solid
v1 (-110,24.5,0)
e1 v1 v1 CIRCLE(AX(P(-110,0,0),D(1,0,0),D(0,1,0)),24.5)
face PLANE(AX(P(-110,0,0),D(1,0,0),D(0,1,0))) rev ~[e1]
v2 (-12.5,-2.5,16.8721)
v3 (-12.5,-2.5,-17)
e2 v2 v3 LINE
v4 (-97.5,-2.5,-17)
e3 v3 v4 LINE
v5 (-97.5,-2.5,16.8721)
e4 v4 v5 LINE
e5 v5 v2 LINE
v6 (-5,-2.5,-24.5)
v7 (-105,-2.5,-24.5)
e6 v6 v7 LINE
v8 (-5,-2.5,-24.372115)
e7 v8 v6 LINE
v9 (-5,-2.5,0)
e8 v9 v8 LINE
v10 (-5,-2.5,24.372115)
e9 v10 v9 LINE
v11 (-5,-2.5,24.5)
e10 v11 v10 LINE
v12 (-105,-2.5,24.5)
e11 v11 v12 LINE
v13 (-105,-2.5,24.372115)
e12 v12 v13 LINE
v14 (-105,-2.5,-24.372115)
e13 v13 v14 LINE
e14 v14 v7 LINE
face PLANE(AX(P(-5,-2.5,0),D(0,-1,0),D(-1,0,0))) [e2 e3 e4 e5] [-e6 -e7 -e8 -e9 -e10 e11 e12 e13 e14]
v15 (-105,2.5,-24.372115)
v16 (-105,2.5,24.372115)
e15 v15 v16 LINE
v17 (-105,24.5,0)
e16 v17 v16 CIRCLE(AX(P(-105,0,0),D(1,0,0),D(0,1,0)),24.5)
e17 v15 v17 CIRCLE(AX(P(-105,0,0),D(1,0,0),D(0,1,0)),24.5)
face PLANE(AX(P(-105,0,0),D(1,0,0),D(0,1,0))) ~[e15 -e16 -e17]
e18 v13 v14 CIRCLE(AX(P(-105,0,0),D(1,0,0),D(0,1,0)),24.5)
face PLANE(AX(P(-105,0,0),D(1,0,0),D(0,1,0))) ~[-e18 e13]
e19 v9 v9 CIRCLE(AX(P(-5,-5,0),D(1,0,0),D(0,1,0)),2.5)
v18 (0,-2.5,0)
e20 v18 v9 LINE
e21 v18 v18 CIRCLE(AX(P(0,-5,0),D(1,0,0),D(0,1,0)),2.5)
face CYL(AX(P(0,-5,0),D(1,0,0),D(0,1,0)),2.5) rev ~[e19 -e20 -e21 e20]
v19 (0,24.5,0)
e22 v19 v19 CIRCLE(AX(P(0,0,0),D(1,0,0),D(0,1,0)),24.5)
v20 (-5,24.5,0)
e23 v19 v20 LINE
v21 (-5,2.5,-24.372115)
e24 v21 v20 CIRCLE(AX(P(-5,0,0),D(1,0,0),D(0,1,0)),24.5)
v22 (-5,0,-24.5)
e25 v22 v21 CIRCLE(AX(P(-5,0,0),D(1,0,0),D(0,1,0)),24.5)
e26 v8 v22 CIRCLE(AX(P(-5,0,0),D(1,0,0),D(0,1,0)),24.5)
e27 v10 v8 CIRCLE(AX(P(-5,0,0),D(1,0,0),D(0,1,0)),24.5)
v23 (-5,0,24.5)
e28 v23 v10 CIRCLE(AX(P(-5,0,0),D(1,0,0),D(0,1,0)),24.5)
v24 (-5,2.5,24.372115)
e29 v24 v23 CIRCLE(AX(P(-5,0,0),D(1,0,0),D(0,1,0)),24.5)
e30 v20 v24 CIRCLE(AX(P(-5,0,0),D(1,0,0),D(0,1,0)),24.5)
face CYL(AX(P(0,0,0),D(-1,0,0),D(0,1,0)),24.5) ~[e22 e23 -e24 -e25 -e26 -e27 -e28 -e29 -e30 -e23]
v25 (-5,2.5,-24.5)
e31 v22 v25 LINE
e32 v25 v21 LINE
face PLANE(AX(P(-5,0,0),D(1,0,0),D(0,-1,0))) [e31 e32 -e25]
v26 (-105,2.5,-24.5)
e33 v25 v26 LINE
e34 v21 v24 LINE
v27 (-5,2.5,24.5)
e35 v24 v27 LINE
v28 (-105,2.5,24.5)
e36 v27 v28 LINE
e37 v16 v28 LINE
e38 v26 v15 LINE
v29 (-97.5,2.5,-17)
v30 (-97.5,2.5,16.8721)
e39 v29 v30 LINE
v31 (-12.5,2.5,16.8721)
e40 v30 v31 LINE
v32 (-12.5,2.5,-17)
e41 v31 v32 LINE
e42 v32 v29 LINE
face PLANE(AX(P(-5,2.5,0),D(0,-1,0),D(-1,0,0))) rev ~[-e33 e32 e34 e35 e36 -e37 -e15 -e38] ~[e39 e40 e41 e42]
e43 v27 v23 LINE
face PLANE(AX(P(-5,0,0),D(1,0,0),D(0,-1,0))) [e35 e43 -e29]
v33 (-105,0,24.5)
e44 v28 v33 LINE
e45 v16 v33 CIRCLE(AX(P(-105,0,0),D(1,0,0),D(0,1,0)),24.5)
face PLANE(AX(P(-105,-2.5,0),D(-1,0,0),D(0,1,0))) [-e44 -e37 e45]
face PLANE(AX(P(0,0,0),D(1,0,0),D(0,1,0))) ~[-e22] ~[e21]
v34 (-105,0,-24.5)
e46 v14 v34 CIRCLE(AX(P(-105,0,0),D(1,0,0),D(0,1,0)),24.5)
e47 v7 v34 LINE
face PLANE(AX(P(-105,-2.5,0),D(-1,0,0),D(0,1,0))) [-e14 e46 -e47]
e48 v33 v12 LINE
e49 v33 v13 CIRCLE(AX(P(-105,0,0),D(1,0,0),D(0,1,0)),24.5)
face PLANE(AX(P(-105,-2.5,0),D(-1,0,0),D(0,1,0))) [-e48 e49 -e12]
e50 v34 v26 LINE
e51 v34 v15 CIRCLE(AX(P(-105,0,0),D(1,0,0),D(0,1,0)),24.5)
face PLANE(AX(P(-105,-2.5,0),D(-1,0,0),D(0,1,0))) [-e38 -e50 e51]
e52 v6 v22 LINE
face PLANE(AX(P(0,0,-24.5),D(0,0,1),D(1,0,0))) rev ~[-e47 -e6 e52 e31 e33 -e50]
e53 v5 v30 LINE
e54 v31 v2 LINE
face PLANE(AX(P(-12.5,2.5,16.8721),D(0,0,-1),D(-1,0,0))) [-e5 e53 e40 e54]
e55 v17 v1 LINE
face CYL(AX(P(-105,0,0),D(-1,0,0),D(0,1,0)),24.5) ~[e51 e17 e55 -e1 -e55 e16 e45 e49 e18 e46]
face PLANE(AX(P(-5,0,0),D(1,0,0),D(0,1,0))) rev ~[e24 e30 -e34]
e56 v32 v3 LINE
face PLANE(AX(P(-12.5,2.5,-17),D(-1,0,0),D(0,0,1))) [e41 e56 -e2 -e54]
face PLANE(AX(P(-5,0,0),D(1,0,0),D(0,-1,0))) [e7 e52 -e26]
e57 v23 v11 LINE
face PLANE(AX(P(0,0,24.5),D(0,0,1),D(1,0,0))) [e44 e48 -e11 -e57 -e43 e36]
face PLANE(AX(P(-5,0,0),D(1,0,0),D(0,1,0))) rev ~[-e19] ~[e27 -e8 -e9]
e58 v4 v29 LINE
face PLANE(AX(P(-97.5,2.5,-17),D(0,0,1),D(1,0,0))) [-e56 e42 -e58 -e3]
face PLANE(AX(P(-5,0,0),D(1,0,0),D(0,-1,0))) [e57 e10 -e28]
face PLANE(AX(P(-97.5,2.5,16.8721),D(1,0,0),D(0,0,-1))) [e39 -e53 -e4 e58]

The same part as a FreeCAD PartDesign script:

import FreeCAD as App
import Part
import Sketcher
Q = App.Units.Quantity


def add_polygon(sketch, points):
    """Adds a closed chain of lines whose ends are joined by coincident constraints."""
    first, n = sketch.GeometryCount, len(points)
    for a, b in zip(points, points[1:] + points[:1]):
        sketch.addGeometry(Part.LineSegment(App.Vector(*a, 0), App.Vector(*b, 0)), False)
    for i in range(n):
        sketch.addConstraint(Sketcher.Constraint("Coincident", first + i, 2, first + (i + 1) % n, 1))

doc = App.newDocument("Part")
body = doc.addObject("PartDesign::Body", "Body")

sketch1 = body.newObject("Sketcher::SketchObject", "Sketch")
sketch1.AttachmentSupport = (doc.getObject("XY_Plane"), [""])
sketch1.MapMode = "FlatFace"
add_polygon(sketch1, [(0, 0), (0, 24), (-5, 24), (-5, 2), (-105, 2), (-105, 24), (-110, 24), (-110, 0)])
sketch1.addConstraint(Sketcher.Constraint("Vertical", 0))
sketch1.addConstraint(Sketcher.Constraint("Horizontal", 1))
sketch1.addConstraint(Sketcher.Constraint("Vertical", 2))
sketch1.addConstraint(Sketcher.Constraint("Horizontal", 3))
sketch1.addConstraint(Sketcher.Constraint("Vertical", 4))
sketch1.addConstraint(Sketcher.Constraint("Horizontal", 5))
sketch1.addConstraint(Sketcher.Constraint("Vertical", 6))
sketch1.addConstraint(Sketcher.Constraint("Horizontal", 7))
sketch1.addConstraint(Sketcher.Constraint("Coincident", 7, 2, -1, 1))
sketch1.addConstraint(Sketcher.Constraint("Horizontal", 1, 2, 4, 2))
sketch1.addConstraint(Sketcher.Constraint("Equal", 1, 5))
sketch1.addConstraint(Sketcher.Constraint("DistanceX", 1, 2, 1, 1, Q("5 mm")))
sketch1.addConstraint(Sketcher.Constraint("DistanceX", 3, 2, 3, 1, Q("100 mm")))
sketch1.addConstraint(Sketcher.Constraint("DistanceY", 2, 2, 2, 1, Q("22 mm")))
sketch1.addConstraint(Sketcher.Constraint("DistanceY", 0, 1, 0, 2, Q("24.5 mm")))
revolution = body.newObject("PartDesign::Revolution", "Revolution")
revolution.Profile = sketch1
revolution.ReferenceAxis = (sketch1, ["H_Axis"])
revolution.Angle = 360

sketch2 = body.newObject("Sketcher::SketchObject", "Sketch001")
sketch2.AttachmentSupport = (doc.getObject("XY_Plane"), [""])
sketch2.MapMode = "FlatFace"
add_polygon(sketch2, [(-5, -2), (-5, 2), (-105, 2), (-105, -2)])
sketch2.addConstraint(Sketcher.Constraint("Vertical", 0))
sketch2.addConstraint(Sketcher.Constraint("Horizontal", 1))
sketch2.addConstraint(Sketcher.Constraint("Vertical", 2))
sketch2.addConstraint(Sketcher.Constraint("Horizontal", 3))
sketch2.addConstraint(Sketcher.Constraint("DistanceX", 1, 2, 1, 1, Q("100 mm")))
sketch2.addConstraint(Sketcher.Constraint("DistanceY", 0, 1, 0, 2, Q("5 mm")))
sketch2.addConstraint(Sketcher.Constraint("DistanceX", 0, 2, -1, 1, Q("5 mm")))
sketch2.addConstraint(Sketcher.Constraint("DistanceY", -1, 1, 0, 2, Q("2.5 mm")))
pad1 = body.newObject("PartDesign::Pad", "Pad")
pad1.Profile = sketch2
pad1.Length = 49
pad1.Midplane = True

sketch3 = body.newObject("Sketcher::SketchObject", "Sketch002")
sketch3.AttachmentSupport = (doc.getObject("XZ_Plane"), [""])
sketch3.MapMode = "FlatFace"
sketch3.AttachmentOffset = App.Placement(App.Vector(0, 0, -2.5), App.Rotation())
add_polygon(sketch3, [(-12, -17), (-98, -17), (-98, 17), (-12, 17)])
sketch3.addConstraint(Sketcher.Constraint("Horizontal", 0))
sketch3.addConstraint(Sketcher.Constraint("Vertical", 1))
sketch3.addConstraint(Sketcher.Constraint("Horizontal", 2))
sketch3.addConstraint(Sketcher.Constraint("Vertical", 3))
sketch3.addConstraint(Sketcher.Constraint("DistanceX", 0, 2, 0, 1, Q("85 mm")))
sketch3.addConstraint(Sketcher.Constraint("DistanceY", 0, 2, -1, 1, Q("17 mm")))
sketch3.addConstraint(Sketcher.Constraint("DistanceX", 0, 2, -1, 1, Q("97.5 mm")))
sketch3.addConstraint(Sketcher.Constraint("DistanceY", 1, 1, 1, 2, Q("33.872 mm")))
pocket1 = body.newObject("PartDesign::Pocket", "Pocket")
pocket1.Profile = sketch3
pocket1.Length = 20
pocket1.Midplane = True

sketch4 = body.newObject("Sketcher::SketchObject", "Sketch003")
sketch4.AttachmentSupport = (doc.getObject("YZ_Plane"), [""])
sketch4.MapMode = "FlatFace"
sketch4.addGeometry(Part.Circle(App.Vector(-5, 0, 0), App.Vector(0, 0, 1), 2.5), False)
sketch4.addConstraint(Sketcher.Constraint("PointOnObject", 0, 3, -1))
sketch4.addConstraint(Sketcher.Constraint("Diameter", 0, Q("5 mm")))
sketch4.addConstraint(Sketcher.Constraint("DistanceX", 0, 3, -1, 1, Q("5 mm")))
pocket2 = body.newObject("PartDesign::Pocket", "Pocket001")
pocket2.Profile = sketch4
pocket2.Length = 10

doc.recompute()
